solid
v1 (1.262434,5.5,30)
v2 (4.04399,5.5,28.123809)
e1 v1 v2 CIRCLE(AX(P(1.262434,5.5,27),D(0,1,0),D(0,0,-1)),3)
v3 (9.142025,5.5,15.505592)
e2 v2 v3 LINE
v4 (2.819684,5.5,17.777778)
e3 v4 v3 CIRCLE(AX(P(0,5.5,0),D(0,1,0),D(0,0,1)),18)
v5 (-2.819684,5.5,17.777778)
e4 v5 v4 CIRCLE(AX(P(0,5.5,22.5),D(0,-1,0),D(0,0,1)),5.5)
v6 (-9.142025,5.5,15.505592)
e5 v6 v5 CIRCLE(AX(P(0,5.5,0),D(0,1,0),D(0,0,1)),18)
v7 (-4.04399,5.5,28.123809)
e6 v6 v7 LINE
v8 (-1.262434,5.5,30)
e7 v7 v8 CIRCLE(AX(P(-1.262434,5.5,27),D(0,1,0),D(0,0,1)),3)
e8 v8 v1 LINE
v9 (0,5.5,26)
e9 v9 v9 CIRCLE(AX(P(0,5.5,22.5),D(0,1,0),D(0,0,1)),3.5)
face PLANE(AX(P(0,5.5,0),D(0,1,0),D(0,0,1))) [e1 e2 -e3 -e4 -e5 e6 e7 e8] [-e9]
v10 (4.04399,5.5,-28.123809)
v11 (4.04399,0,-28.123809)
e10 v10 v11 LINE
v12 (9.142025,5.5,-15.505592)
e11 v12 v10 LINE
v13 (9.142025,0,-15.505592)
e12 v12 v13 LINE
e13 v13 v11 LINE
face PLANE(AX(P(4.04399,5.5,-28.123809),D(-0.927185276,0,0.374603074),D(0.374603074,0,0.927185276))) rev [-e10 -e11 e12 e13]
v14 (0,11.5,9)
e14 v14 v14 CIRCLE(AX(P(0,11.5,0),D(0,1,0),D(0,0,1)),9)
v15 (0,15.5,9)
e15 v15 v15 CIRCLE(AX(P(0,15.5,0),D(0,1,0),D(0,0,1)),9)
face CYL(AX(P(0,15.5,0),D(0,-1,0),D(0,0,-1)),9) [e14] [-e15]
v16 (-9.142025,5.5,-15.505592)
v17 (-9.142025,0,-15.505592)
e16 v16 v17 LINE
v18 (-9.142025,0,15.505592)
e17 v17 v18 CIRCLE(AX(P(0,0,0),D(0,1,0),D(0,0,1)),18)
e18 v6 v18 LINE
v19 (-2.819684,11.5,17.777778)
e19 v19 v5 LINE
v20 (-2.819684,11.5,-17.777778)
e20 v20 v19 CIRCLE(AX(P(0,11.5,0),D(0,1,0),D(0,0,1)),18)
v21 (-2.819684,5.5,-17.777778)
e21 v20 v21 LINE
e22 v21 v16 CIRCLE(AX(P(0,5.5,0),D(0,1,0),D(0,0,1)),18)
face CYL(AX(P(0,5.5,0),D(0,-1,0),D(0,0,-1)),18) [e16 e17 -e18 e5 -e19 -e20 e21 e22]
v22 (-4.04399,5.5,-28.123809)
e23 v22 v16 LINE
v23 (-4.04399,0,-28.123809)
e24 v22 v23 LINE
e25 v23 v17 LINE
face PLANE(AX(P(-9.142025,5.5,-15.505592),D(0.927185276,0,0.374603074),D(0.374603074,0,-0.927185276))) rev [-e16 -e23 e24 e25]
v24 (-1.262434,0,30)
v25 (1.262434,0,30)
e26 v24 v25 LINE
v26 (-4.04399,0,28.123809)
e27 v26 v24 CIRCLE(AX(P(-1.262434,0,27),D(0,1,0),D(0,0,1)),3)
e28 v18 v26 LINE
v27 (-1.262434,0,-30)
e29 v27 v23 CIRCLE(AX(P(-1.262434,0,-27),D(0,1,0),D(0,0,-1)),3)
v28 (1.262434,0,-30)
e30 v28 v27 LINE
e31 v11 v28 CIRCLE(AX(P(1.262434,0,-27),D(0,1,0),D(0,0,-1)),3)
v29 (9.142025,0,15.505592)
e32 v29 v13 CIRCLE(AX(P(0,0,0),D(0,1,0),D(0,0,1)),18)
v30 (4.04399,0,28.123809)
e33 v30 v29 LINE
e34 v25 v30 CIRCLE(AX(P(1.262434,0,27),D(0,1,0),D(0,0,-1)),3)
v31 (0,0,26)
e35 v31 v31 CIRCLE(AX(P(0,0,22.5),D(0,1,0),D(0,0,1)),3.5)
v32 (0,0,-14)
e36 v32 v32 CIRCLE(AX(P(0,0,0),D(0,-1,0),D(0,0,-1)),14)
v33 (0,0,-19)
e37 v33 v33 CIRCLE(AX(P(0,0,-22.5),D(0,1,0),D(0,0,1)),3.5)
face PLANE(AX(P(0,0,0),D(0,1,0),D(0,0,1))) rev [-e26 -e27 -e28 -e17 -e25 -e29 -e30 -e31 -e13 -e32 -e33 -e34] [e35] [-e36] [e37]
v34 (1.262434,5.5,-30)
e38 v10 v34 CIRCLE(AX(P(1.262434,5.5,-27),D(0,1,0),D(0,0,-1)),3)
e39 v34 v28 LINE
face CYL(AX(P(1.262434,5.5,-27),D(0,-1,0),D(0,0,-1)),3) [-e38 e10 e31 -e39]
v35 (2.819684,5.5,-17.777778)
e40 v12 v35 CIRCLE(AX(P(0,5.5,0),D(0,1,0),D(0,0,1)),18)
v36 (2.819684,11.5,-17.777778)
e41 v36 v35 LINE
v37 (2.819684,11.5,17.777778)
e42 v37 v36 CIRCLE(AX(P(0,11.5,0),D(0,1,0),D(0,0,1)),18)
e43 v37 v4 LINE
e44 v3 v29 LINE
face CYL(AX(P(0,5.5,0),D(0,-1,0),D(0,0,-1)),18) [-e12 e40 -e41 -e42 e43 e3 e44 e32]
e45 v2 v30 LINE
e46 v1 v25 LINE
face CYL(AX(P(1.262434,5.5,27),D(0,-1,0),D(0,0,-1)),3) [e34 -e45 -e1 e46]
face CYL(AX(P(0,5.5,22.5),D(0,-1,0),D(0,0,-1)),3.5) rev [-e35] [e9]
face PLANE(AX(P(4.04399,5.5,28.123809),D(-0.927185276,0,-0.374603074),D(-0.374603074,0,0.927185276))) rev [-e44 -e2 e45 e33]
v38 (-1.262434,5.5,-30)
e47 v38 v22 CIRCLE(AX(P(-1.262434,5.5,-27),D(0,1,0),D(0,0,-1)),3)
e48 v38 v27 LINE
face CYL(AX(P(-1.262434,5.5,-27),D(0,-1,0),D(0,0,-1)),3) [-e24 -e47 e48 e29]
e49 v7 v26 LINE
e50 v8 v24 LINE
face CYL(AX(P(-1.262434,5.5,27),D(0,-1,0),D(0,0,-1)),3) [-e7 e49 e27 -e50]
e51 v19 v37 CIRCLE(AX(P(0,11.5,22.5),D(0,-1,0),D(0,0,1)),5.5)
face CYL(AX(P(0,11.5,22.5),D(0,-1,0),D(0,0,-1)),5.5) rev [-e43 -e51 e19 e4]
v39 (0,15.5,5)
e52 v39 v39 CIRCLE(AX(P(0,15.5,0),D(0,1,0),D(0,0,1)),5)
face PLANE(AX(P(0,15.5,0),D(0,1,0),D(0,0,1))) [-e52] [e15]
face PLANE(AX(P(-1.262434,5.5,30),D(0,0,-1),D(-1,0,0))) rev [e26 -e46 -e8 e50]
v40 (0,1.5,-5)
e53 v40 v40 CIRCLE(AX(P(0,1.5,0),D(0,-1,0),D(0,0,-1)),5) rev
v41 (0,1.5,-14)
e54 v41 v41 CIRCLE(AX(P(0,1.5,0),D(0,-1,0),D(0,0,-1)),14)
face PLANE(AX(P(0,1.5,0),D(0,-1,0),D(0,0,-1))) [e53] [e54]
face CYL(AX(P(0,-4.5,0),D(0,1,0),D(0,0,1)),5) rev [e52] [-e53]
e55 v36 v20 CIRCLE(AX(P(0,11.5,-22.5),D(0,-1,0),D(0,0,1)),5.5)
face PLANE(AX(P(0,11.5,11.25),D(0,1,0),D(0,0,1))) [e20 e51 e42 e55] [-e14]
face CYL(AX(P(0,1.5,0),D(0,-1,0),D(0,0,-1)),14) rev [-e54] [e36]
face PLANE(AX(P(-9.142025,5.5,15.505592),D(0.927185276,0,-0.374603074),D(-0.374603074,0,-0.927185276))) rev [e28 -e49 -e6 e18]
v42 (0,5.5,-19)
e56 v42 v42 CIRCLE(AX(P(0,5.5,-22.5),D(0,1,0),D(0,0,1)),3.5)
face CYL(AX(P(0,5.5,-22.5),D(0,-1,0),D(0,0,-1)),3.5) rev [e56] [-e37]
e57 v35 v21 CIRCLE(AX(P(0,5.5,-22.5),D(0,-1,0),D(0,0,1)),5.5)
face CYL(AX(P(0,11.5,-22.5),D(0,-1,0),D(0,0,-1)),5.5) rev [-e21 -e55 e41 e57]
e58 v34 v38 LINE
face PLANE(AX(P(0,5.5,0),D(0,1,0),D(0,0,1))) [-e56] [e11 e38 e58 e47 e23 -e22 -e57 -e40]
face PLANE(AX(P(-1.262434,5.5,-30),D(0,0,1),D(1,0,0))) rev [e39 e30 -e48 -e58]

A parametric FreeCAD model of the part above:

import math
import FreeCAD as App
import Part
import Sketcher

V = App.Vector

doc = App.newDocument("Part")
body = doc.addObject("PartDesign::Body", "Body")

# Sketch on XZ plane
sketch1 = body.newObject("Sketcher::SketchObject", "Sketch")
sketch1.AttachmentSupport = (doc.getObject("XZ_Plane"), [""])
sketch1.MapMode = "FlatFace"
sketch1.addGeometry(Part.LineSegment(V(-4, -28.1, 0), V(-9.1, -15.5, 0)), False)
sketch1.addGeometry(Part.ArcOfCircle(Part.Circle(V(0, 0, 0), V(0, 0, 1), 18), math.radians(121), math.radians(239)), False)
sketch1.addGeometry(Part.LineSegment(V(-9.1, 15.5, 0), V(-4, 28.1, 0)), False)
sketch1.addGeometry(Part.ArcOfCircle(Part.Circle(V(-1.3, 27, 0), V(0, 0, 1), 3), math.radians(90), math.radians(158)), False)
sketch1.addGeometry(Part.LineSegment(V(-1.3, 30, 0), V(1.3, 30, 0)), False)
sketch1.addGeometry(Part.ArcOfCircle(Part.Circle(V(1.3, 27, 0), V(0, 0, 1), 3), math.radians(22), math.radians(90)), False)
sketch1.addGeometry(Part.LineSegment(V(4, 28.1, 0), V(9.1, 15.5, 0)), False)
sketch1.addGeometry(Part.ArcOfCircle(Part.Circle(V(0, 0, 0), V(0, 0, 1), 18), math.radians(-59), math.radians(59)), False)
sketch1.addGeometry(Part.LineSegment(V(9.1, -15.5, 0), V(4, -28.1, 0)), False)
sketch1.addGeometry(Part.ArcOfCircle(Part.Circle(V(1.3, -27, 0), V(0, 0, 1), 3), math.radians(-90), math.radians(-22)), False)
sketch1.addGeometry(Part.LineSegment(V(1.3, -30, 0), V(-1.3, -30, 0)), False)
sketch1.addGeometry(Part.ArcOfCircle(Part.Circle(V(-1.3, -27, 0), V(0, 0, 1), 3), math.radians(-158), math.radians(-90)), False)
sketch1.addGeometry(Part.Circle(V(0, 22.5, 0), V(0, 0, 1), 3.5), False)
sketch1.addGeometry(Part.Circle(V(0, -22.5, 0), V(0, 0, 1), 3.5), False)
sketch1.addConstraint(Sketcher.Constraint("Coincident", 0, 2, 1, 2))
sketch1.addConstraint(Sketcher.Constraint("Coincident", 1, 1, 2, 1))
sketch1.addConstraint(Sketcher.Constraint("Tangent", 2, 2, 3, 2))
sketch1.addConstraint(Sketcher.Constraint("Tangent", 3, 1, 4, 1))
sketch1.addConstraint(Sketcher.Constraint("Tangent", 4, 2, 5, 2))
sketch1.addConstraint(Sketcher.Constraint("Tangent", 5, 1, 6, 1))
sketch1.addConstraint(Sketcher.Constraint("Coincident", 6, 2, 7, 2))
sketch1.addConstraint(Sketcher.Constraint("Coincident", 7, 1, 8, 1))
sketch1.addConstraint(Sketcher.Constraint("Tangent", 8, 2, 9, 2))
sketch1.addConstraint(Sketcher.Constraint("Tangent", 9, 1, 10, 1))
sketch1.addConstraint(Sketcher.Constraint("Tangent", 10, 2, 11, 2))
sketch1.addConstraint(Sketcher.Constraint("Tangent", 11, 1, 0, 1))
sketch1.addConstraint(Sketcher.Constraint("Horizontal", 4))
sketch1.addConstraint(Sketcher.Constraint("Horizontal", 10))
sketch1.addConstraint(Sketcher.Constraint("Coincident", 1, 3, -1, 1))
sketch1.addConstraint(Sketcher.Constraint("Coincident", 7, 3, -1, 1))
sketch1.addConstraint(Sketcher.Constraint("Equal", 3, 5))
sketch1.addConstraint(Sketcher.Constraint("Equal", 1, 7))
sketch1.addConstraint(Sketcher.Constraint("Equal", 5, 9))
sketch1.addConstraint(Sketcher.Constraint("Equal", 9, 11))
sketch1.addConstraint(Sketcher.Constraint("Equal", 12, 13))
sketch1.addConstraint(Sketcher.Constraint("Symmetric", 3, 3, 9, 3, -1, 1))
sketch1.addConstraint(Sketcher.Constraint("Symmetric", 12, 3, 13, 3, -1, 1))
sketch1.addConstraint(Sketcher.Constraint("Symmetric", 5, 1, 11, 1, -1, 1))
sketch1.addConstraint(Sketcher.Constraint("Symmetric", 2, 2, 5, 1, -2))
sketch1.addConstraint(Sketcher.Constraint("PointOnObject", 12, 3, -2))
sketch1.addConstraint(Sketcher.Constraint("Parallel", 2, 8))
sketch1.addConstraint(Sketcher.Constraint("Diameter", 12, 7.0))
sketch1.addConstraint(Sketcher.Constraint("Radius", 1, 18.0))
sketch1.addConstraint(Sketcher.Constraint("Radius", 3, 3.0))
sketch1.addConstraint(Sketcher.Constraint("DistanceY", -1, 1, 3, 3, 27.0))
sketch1.addConstraint(Sketcher.Constraint("DistanceY", 13, 3, 12, 3, 45.0))
sketch1.addConstraint(Sketcher.Constraint("DistanceX", 4, 1, 4, 2, 2.524869))
sketch1.addConstraint(Sketcher.Constraint("DistanceY", 0, 2, -1, 1, 15.505592))
pad1 = body.newObject("PartDesign::Pad", "Pad")
pad1.Profile = sketch1
pad1.Length = 5.5
pad1.Reversed = True

# Sketch on XZ plane
sketch2 = body.newObject("Sketcher::SketchObject", "Sketch001")
sketch2.AttachmentSupport = (doc.getObject("XZ_Plane"), [""])
sketch2.MapMode = "FlatFace"
sketch2.AttachmentOffset = App.Placement(V(0, 0, -5.5), App.Rotation())
sketch2.addGeometry(Part.ArcOfCircle(Part.Circle(V(0, 0, 0), V(0, 0, 1), 18), math.radians(-81), math.radians(81)), False)
sketch2.addGeometry(Part.ArcOfCircle(Part.Circle(V(0, -22, 0), V(0, 0, 1), 5), math.radians(59), math.radians(121)), False)
sketch2.addGeometry(Part.ArcOfCircle(Part.Circle(V(0, 0, 0), V(0, 0, 1), 18), math.radians(99), math.radians(261)), False)
sketch2.addGeometry(Part.ArcOfCircle(Part.Circle(V(0, 22, 0), V(0, 0, 1), 5), math.radians(-121), math.radians(-59)), False)
sketch2.addConstraint(Sketcher.Constraint("Coincident", 0, 1, 1, 1))
sketch2.addConstraint(Sketcher.Constraint("Coincident", 1, 2, 2, 2))
sketch2.addConstraint(Sketcher.Constraint("Coincident", 2, 1, 3, 1))
sketch2.addConstraint(Sketcher.Constraint("Coincident", 3, 2, 0, 2))
sketch2.addConstraint(Sketcher.Constraint("Coincident", 0, 3, -1, 1))
sketch2.addConstraint(Sketcher.Constraint("Coincident", 2, 3, -1, 1))
sketch2.addConstraint(Sketcher.Constraint("Equal", 0, 2))
sketch2.addConstraint(Sketcher.Constraint("Equal", 1, 3))
sketch2.addConstraint(Sketcher.Constraint("Symmetric", 1, 3, 3, 3, -1, 1))
sketch2.addConstraint(Sketcher.Constraint("PointOnObject", 1, 3, -2))
sketch2.addConstraint(Sketcher.Constraint("Radius", 0, 18.0))
sketch2.addConstraint(Sketcher.Constraint("Radius", 1, 5.5))
sketch2.addConstraint(Sketcher.Constraint("DistanceY", 1, 3, 3, 3, 45.0))
pad2 = body.newObject("PartDesign::Pad", "Pad001")
pad2.Profile = sketch2
pad2.Length = 6
pad2.Reversed = True

# Sketch on XZ plane
sketch3 = body.newObject("Sketcher::SketchObject", "Sketch002")
sketch3.AttachmentSupport = (doc.getObject("XZ_Plane"), [""])
sketch3.MapMode = "FlatFace"
sketch3.AttachmentOffset = App.Placement(V(0, 0, -11.5), App.Rotation())
sketch3.addGeometry(Part.Circle(V(0, 0, 0), V(0, 0, 1), 9), False)
sketch3.addConstraint(Sketcher.Constraint("Coincident", 0, 3, -1, 1))
sketch3.addConstraint(Sketcher.Constraint("Diameter", 0, 18.0))
pad3 = body.newObject("PartDesign::Pad", "Pad002")
pad3.Profile = sketch3
pad3.Length = 4
pad3.Reversed = True

# Sketch on XZ plane
sketch4 = body.newObject("Sketcher::SketchObject", "Sketch003")
sketch4.AttachmentSupport = (doc.getObject("XZ_Plane"), [""])
sketch4.MapMode = "FlatFace"
sketch4.AttachmentOffset = App.Placement(V(0, 0, -15.5), App.Rotation())
sketch4.addGeometry(Part.Circle(V(0, 0, 0), V(0, 0, 1), 5), False)
sketch4.addConstraint(Sketcher.Constraint("Coincident", 0, 3, -1, 1))
sketch4.addConstraint(Sketcher.Constraint("Diameter", 0, 10.0))
pocket1 = body.newObject("PartDesign::Pocket", "Pocket")
pocket1.Profile = sketch4
pocket1.Length = 20
pocket1.Reversed = True

# Sketch on XZ plane
sketch5 = body.newObject("Sketcher::SketchObject", "Sketch004")
sketch5.AttachmentSupport = (doc.getObject("XZ_Plane"), [""])
sketch5.MapMode = "FlatFace"
sketch5.addGeometry(Part.Circle(V(0, 0, 0), V(0, 0, 1), 14), False)
sketch5.addConstraint(Sketcher.Constraint("Coincident", 0, 3, -1, 1))
sketch5.addConstraint(Sketcher.Constraint("Diameter", 0, 28.0))
pocket2 = body.newObject("PartDesign::Pocket", "Pocket001")
pocket2.Profile = sketch5
pocket2.Length = 1.5

doc.recompute()
